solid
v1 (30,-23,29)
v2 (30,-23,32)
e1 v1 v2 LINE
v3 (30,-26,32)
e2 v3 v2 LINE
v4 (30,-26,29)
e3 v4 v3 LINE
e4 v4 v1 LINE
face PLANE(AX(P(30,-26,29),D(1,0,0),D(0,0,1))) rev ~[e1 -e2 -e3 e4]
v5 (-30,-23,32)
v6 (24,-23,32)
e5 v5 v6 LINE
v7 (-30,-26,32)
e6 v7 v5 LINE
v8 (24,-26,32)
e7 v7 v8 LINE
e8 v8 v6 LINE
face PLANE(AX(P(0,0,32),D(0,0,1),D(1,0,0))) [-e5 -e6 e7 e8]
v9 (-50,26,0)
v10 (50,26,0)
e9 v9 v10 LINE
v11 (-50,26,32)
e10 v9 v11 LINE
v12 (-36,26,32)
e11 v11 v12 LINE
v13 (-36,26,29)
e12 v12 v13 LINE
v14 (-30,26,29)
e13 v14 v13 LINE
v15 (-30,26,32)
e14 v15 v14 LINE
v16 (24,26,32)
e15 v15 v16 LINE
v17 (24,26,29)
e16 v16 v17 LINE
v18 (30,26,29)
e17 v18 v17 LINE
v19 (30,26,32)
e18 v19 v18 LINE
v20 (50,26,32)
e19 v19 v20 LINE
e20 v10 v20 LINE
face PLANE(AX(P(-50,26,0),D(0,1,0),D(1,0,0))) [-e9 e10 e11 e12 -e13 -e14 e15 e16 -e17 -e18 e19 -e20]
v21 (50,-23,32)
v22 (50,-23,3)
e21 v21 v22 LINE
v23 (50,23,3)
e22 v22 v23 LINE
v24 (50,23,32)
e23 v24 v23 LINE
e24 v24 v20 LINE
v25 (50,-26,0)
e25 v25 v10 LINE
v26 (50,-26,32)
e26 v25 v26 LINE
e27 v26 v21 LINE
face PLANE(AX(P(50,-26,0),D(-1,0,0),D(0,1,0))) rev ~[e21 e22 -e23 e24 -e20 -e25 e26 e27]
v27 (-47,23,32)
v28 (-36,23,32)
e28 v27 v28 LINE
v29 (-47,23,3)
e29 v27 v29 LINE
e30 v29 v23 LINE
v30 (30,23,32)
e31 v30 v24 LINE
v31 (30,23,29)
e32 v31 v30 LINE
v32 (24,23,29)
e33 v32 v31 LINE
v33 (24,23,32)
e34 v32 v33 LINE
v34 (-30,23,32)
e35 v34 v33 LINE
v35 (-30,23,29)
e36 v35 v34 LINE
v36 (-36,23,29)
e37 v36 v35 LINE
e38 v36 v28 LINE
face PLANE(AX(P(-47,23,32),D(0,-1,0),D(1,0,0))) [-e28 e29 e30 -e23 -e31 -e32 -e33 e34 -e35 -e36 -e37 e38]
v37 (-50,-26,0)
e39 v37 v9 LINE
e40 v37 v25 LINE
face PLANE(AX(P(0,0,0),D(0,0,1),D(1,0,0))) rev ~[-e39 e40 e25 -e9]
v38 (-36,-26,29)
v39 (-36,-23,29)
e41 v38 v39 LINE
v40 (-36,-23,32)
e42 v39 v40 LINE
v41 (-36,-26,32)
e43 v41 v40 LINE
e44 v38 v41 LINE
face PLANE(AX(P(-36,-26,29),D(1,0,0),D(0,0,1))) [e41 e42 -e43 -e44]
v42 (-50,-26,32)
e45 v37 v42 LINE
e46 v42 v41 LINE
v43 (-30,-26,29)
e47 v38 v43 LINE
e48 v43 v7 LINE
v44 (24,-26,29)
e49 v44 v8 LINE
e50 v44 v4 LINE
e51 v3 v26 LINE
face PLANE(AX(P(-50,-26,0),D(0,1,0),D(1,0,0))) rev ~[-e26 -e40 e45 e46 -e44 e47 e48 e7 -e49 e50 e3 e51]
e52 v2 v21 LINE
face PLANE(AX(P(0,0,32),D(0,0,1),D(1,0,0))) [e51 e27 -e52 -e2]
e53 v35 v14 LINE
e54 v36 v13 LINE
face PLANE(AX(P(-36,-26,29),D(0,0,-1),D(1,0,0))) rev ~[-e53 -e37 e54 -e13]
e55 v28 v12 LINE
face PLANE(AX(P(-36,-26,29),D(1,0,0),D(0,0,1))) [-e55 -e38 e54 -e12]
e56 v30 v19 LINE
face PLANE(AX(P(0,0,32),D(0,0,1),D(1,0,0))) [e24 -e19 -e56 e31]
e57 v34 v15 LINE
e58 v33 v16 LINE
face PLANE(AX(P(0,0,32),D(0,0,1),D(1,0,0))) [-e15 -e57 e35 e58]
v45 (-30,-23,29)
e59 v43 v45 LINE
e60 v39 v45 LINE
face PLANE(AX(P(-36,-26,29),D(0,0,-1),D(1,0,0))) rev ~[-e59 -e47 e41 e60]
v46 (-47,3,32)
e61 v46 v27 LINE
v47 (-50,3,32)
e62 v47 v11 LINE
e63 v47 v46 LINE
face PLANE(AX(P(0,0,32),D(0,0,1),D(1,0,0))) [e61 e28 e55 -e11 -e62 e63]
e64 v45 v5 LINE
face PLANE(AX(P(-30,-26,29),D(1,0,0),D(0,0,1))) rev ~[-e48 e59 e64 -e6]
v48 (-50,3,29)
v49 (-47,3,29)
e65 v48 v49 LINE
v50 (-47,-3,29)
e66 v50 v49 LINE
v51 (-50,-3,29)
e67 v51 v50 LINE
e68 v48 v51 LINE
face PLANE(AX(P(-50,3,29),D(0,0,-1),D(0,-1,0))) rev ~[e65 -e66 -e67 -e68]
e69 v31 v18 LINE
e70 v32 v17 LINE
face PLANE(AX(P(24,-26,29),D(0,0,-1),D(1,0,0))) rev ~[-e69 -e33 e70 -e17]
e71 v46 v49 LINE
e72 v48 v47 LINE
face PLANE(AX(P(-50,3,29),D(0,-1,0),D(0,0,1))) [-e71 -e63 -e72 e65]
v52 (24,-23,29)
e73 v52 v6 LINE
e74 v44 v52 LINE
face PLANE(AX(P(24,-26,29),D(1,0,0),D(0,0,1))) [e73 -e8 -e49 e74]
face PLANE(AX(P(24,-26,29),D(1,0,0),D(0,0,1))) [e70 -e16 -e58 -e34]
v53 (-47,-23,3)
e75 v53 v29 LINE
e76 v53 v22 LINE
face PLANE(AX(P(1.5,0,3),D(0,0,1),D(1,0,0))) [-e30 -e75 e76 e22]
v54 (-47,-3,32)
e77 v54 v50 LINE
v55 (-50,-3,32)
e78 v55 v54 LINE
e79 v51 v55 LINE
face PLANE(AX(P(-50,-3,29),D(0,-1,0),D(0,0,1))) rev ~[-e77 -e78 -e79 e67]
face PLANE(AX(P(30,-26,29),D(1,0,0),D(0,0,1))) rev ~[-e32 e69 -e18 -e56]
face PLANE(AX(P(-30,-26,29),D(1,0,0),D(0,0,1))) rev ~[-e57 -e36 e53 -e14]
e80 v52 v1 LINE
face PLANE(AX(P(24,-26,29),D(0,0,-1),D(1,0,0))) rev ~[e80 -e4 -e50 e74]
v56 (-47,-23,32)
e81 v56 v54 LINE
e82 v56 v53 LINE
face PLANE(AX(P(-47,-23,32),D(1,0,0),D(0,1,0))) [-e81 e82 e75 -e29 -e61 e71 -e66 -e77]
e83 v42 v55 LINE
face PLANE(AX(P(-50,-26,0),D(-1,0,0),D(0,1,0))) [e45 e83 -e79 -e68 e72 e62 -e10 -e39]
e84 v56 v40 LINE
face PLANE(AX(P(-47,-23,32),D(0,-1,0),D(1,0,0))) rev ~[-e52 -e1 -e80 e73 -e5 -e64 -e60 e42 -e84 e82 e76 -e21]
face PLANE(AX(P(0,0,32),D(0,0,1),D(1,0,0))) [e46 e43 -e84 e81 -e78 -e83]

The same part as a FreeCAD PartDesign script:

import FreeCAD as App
import Part
import Sketcher
from FreeCAD import Vector
Q = App.Units.Quantity


def add_polygon(sketch, points):
    """Adds a closed chain of lines whose ends are joined by coincident constraints."""
    first, n = sketch.GeometryCount, len(points)
    for a, b in zip(points, points[1:] + points[:1]):
        sketch.addGeometry(Part.LineSegment(App.Vector(*a, 0), App.Vector(*b, 0)), False)
    for i in range(n):
        sketch.addConstraint(Sketcher.Constraint("Coincident", first + i, 2, first + (i + 1) % n, 1))

doc = App.newDocument("Part")
params = doc.addObject("Spreadsheet::Sheet", "Params")
for row, (alias, value) in enumerate([
    ("sketch1_width", "100 mm"),
    ("sketch1_height", "52 mm"),
    ("pad1_length", "32 mm"),
    ("sketch2_width", "97 mm"),
    ("sketch2_height", "46 mm"),
    ("pocket1_length", "29 mm"),
    ("sketch3_width", "6 mm"),
    ("sketch3_height", "3 mm"),
    ("sketch4_width", "6 mm"),
    ("sketch4_height", "3 mm"),
    ("sketch5_width", "6 mm"),
    ("sketch5_height", "3 mm"),
], start=1):
    params.set(f"A{row}", alias)
    params.set(f"B{row}", "=" + value)
    params.setAlias(f"B{row}", alias)

body = doc.addObject("PartDesign::Body", "Body")

sketch1 = body.newObject("Sketcher::SketchObject", "Sketch")
sketch1.AttachmentSupport = (doc.getObject("XY_Plane"), [""])
sketch1.MapMode = "FlatFace"
add_polygon(sketch1, [(-50, 26), (-50, -26), (50, -26), (50, 26)])
sketch1.addConstraint(Sketcher.Constraint("Vertical", 0))
sketch1.addConstraint(Sketcher.Constraint("Horizontal", 1))
sketch1.addConstraint(Sketcher.Constraint("Vertical", 2))
sketch1.addConstraint(Sketcher.Constraint("Horizontal", 3))
sketch1.addConstraint(Sketcher.Constraint("Symmetric", 0, 2, 2, 2, -1, 1))
sketch1.addConstraint(Sketcher.Constraint("DistanceX", 1, 1, 1, 2, Q("100 mm")))
sketch1.addConstraint(Sketcher.Constraint("DistanceY", 0, 2, 0, 1, Q("52 mm")))
sketch1.setExpression("Constraints[9]", "Params.sketch1_width")
sketch1.setExpression("Constraints[10]", "Params.sketch1_height")
pad1 = body.newObject("PartDesign::Pad", "Pad")
pad1.Profile = sketch1
pad1.setExpression("Length", "Params.pad1_length")

sketch2 = body.newObject("Sketcher::SketchObject", "Sketch001")
sketch2.AttachmentSupport = (doc.getObject("XY_Plane"), [""])
sketch2.MapMode = "FlatFace"
sketch2.AttachmentOffset = App.Placement(Vector(0, 0, 32), App.Rotation())
add_polygon(sketch2, [(-47, 23), (-47, -23), (50, -23), (50, 23)])
sketch2.addConstraint(Sketcher.Constraint("Vertical", 0))
sketch2.addConstraint(Sketcher.Constraint("Horizontal", 1))
sketch2.addConstraint(Sketcher.Constraint("Vertical", 2))
sketch2.addConstraint(Sketcher.Constraint("Horizontal", 3))
sketch2.addConstraint(Sketcher.Constraint("DistanceX", 1, 1, 1, 2, Q("97 mm")))
sketch2.addConstraint(Sketcher.Constraint("DistanceY", 0, 2, 0, 1, Q("46 mm")))
sketch2.addConstraint(Sketcher.Constraint("DistanceX", 0, 2, -1, 1, Q("47 mm")))
sketch2.addConstraint(Sketcher.Constraint("DistanceY", 0, 2, -1, 1, Q("23 mm")))
sketch2.setExpression("Constraints[8]", "Params.sketch2_width")
sketch2.setExpression("Constraints[9]", "Params.sketch2_height")
pocket1 = body.newObject("PartDesign::Pocket", "Pocket")
pocket1.Profile = sketch2
pocket1.setExpression("Length", "Params.pocket1_length")

sketch3 = body.newObject("Sketcher::SketchObject", "Sketch002")
sketch3.AttachmentSupport = (doc.getObject("XZ_Plane"), [""])
sketch3.MapMode = "FlatFace"
sketch3.AttachmentOffset = App.Placement(Vector(0, 0, 26), App.Rotation())
add_polygon(sketch3, [(-36, 32), (-36, 29), (-30, 29), (-30, 32)])
sketch3.addConstraint(Sketcher.Constraint("Vertical", 0))
sketch3.addConstraint(Sketcher.Constraint("Horizontal", 1))
sketch3.addConstraint(Sketcher.Constraint("Vertical", 2))
sketch3.addConstraint(Sketcher.Constraint("Horizontal", 3))
sketch3.addConstraint(Sketcher.Constraint("DistanceX", 1, 1, 1, 2, Q("6 mm")))
sketch3.addConstraint(Sketcher.Constraint("DistanceY", 0, 2, 0, 1, Q("3 mm")))
sketch3.addConstraint(Sketcher.Constraint("DistanceX", 0, 2, -1, 1, Q("36 mm")))
sketch3.addConstraint(Sketcher.Constraint("DistanceY", -1, 1, 0, 2, Q("29 mm")))
sketch3.setExpression("Constraints[8]", "Params.sketch3_width")
sketch3.setExpression("Constraints[9]", "Params.sketch3_height")
pocket2 = body.newObject("PartDesign::Pocket", "Pocket001")
pocket2.Profile = sketch3
pocket2.Type = "ThroughAll"

sketch4 = body.newObject("Sketcher::SketchObject", "Sketch003")
sketch4.AttachmentSupport = (doc.getObject("XZ_Plane"), [""])
sketch4.MapMode = "FlatFace"
sketch4.AttachmentOffset = App.Placement(Vector(0, 0, 26), App.Rotation())
add_polygon(sketch4, [(24, 32), (24, 29), (30, 29), (30, 32)])
sketch4.addConstraint(Sketcher.Constraint("Vertical", 0))
sketch4.addConstraint(Sketcher.Constraint("Horizontal", 1))
sketch4.addConstraint(Sketcher.Constraint("Vertical", 2))
sketch4.addConstraint(Sketcher.Constraint("Horizontal", 3))
sketch4.addConstraint(Sketcher.Constraint("DistanceX", 1, 1, 1, 2, Q("6 mm")))
sketch4.addConstraint(Sketcher.Constraint("DistanceY", 0, 2, 0, 1, Q("3 mm")))
sketch4.addConstraint(Sketcher.Constraint("DistanceX", -1, 1, 0, 2, Q("24 mm")))
sketch4.addConstraint(Sketcher.Constraint("DistanceY", -1, 1, 0, 2, Q("29 mm")))
sketch4.setExpression("Constraints[8]", "Params.sketch4_width")
sketch4.setExpression("Constraints[9]", "Params.sketch4_height")
pocket3 = body.newObject("PartDesign::Pocket", "Pocket002")
pocket3.Profile = sketch4
pocket3.Type = "ThroughAll"

sketch5 = body.newObject("Sketcher::SketchObject", "Sketch004")
sketch5.AttachmentSupport = (doc.getObject("YZ_Plane"), [""])
sketch5.MapMode = "FlatFace"
sketch5.AttachmentOffset = App.Placement(Vector(0, 0, -50), App.Rotation())
add_polygon(sketch5, [(3, 32), (3, 29), (-3, 29), (-3, 32)])
sketch5.addConstraint(Sketcher.Constraint("Vertical", 0))
sketch5.addConstraint(Sketcher.Constraint("Horizontal", 1))
sketch5.addConstraint(Sketcher.Constraint("Vertical", 2))
sketch5.addConstraint(Sketcher.Constraint("Horizontal", 3))
sketch5.addConstraint(Sketcher.Constraint("DistanceX", 1, 2, 1, 1, Q("6 mm")))
sketch5.addConstraint(Sketcher.Constraint("DistanceY", 0, 2, 0, 1, Q("3 mm")))
sketch5.addConstraint(Sketcher.Constraint("DistanceX", -1, 1, 0, 2, Q("3 mm")))
sketch5.addConstraint(Sketcher.Constraint("DistanceY", -1, 1, 0, 2, Q("29 mm")))
sketch5.setExpression("Constraints[8]", "Params.sketch5_width")
sketch5.setExpression("Constraints[9]", "Params.sketch5_height")
pocket4 = body.newObject("PartDesign::Pocket", "Pocket003")
pocket4.Profile = sketch5
pocket4.Type = "ThroughAll"
pocket4.Reversed = True

doc.recompute()
